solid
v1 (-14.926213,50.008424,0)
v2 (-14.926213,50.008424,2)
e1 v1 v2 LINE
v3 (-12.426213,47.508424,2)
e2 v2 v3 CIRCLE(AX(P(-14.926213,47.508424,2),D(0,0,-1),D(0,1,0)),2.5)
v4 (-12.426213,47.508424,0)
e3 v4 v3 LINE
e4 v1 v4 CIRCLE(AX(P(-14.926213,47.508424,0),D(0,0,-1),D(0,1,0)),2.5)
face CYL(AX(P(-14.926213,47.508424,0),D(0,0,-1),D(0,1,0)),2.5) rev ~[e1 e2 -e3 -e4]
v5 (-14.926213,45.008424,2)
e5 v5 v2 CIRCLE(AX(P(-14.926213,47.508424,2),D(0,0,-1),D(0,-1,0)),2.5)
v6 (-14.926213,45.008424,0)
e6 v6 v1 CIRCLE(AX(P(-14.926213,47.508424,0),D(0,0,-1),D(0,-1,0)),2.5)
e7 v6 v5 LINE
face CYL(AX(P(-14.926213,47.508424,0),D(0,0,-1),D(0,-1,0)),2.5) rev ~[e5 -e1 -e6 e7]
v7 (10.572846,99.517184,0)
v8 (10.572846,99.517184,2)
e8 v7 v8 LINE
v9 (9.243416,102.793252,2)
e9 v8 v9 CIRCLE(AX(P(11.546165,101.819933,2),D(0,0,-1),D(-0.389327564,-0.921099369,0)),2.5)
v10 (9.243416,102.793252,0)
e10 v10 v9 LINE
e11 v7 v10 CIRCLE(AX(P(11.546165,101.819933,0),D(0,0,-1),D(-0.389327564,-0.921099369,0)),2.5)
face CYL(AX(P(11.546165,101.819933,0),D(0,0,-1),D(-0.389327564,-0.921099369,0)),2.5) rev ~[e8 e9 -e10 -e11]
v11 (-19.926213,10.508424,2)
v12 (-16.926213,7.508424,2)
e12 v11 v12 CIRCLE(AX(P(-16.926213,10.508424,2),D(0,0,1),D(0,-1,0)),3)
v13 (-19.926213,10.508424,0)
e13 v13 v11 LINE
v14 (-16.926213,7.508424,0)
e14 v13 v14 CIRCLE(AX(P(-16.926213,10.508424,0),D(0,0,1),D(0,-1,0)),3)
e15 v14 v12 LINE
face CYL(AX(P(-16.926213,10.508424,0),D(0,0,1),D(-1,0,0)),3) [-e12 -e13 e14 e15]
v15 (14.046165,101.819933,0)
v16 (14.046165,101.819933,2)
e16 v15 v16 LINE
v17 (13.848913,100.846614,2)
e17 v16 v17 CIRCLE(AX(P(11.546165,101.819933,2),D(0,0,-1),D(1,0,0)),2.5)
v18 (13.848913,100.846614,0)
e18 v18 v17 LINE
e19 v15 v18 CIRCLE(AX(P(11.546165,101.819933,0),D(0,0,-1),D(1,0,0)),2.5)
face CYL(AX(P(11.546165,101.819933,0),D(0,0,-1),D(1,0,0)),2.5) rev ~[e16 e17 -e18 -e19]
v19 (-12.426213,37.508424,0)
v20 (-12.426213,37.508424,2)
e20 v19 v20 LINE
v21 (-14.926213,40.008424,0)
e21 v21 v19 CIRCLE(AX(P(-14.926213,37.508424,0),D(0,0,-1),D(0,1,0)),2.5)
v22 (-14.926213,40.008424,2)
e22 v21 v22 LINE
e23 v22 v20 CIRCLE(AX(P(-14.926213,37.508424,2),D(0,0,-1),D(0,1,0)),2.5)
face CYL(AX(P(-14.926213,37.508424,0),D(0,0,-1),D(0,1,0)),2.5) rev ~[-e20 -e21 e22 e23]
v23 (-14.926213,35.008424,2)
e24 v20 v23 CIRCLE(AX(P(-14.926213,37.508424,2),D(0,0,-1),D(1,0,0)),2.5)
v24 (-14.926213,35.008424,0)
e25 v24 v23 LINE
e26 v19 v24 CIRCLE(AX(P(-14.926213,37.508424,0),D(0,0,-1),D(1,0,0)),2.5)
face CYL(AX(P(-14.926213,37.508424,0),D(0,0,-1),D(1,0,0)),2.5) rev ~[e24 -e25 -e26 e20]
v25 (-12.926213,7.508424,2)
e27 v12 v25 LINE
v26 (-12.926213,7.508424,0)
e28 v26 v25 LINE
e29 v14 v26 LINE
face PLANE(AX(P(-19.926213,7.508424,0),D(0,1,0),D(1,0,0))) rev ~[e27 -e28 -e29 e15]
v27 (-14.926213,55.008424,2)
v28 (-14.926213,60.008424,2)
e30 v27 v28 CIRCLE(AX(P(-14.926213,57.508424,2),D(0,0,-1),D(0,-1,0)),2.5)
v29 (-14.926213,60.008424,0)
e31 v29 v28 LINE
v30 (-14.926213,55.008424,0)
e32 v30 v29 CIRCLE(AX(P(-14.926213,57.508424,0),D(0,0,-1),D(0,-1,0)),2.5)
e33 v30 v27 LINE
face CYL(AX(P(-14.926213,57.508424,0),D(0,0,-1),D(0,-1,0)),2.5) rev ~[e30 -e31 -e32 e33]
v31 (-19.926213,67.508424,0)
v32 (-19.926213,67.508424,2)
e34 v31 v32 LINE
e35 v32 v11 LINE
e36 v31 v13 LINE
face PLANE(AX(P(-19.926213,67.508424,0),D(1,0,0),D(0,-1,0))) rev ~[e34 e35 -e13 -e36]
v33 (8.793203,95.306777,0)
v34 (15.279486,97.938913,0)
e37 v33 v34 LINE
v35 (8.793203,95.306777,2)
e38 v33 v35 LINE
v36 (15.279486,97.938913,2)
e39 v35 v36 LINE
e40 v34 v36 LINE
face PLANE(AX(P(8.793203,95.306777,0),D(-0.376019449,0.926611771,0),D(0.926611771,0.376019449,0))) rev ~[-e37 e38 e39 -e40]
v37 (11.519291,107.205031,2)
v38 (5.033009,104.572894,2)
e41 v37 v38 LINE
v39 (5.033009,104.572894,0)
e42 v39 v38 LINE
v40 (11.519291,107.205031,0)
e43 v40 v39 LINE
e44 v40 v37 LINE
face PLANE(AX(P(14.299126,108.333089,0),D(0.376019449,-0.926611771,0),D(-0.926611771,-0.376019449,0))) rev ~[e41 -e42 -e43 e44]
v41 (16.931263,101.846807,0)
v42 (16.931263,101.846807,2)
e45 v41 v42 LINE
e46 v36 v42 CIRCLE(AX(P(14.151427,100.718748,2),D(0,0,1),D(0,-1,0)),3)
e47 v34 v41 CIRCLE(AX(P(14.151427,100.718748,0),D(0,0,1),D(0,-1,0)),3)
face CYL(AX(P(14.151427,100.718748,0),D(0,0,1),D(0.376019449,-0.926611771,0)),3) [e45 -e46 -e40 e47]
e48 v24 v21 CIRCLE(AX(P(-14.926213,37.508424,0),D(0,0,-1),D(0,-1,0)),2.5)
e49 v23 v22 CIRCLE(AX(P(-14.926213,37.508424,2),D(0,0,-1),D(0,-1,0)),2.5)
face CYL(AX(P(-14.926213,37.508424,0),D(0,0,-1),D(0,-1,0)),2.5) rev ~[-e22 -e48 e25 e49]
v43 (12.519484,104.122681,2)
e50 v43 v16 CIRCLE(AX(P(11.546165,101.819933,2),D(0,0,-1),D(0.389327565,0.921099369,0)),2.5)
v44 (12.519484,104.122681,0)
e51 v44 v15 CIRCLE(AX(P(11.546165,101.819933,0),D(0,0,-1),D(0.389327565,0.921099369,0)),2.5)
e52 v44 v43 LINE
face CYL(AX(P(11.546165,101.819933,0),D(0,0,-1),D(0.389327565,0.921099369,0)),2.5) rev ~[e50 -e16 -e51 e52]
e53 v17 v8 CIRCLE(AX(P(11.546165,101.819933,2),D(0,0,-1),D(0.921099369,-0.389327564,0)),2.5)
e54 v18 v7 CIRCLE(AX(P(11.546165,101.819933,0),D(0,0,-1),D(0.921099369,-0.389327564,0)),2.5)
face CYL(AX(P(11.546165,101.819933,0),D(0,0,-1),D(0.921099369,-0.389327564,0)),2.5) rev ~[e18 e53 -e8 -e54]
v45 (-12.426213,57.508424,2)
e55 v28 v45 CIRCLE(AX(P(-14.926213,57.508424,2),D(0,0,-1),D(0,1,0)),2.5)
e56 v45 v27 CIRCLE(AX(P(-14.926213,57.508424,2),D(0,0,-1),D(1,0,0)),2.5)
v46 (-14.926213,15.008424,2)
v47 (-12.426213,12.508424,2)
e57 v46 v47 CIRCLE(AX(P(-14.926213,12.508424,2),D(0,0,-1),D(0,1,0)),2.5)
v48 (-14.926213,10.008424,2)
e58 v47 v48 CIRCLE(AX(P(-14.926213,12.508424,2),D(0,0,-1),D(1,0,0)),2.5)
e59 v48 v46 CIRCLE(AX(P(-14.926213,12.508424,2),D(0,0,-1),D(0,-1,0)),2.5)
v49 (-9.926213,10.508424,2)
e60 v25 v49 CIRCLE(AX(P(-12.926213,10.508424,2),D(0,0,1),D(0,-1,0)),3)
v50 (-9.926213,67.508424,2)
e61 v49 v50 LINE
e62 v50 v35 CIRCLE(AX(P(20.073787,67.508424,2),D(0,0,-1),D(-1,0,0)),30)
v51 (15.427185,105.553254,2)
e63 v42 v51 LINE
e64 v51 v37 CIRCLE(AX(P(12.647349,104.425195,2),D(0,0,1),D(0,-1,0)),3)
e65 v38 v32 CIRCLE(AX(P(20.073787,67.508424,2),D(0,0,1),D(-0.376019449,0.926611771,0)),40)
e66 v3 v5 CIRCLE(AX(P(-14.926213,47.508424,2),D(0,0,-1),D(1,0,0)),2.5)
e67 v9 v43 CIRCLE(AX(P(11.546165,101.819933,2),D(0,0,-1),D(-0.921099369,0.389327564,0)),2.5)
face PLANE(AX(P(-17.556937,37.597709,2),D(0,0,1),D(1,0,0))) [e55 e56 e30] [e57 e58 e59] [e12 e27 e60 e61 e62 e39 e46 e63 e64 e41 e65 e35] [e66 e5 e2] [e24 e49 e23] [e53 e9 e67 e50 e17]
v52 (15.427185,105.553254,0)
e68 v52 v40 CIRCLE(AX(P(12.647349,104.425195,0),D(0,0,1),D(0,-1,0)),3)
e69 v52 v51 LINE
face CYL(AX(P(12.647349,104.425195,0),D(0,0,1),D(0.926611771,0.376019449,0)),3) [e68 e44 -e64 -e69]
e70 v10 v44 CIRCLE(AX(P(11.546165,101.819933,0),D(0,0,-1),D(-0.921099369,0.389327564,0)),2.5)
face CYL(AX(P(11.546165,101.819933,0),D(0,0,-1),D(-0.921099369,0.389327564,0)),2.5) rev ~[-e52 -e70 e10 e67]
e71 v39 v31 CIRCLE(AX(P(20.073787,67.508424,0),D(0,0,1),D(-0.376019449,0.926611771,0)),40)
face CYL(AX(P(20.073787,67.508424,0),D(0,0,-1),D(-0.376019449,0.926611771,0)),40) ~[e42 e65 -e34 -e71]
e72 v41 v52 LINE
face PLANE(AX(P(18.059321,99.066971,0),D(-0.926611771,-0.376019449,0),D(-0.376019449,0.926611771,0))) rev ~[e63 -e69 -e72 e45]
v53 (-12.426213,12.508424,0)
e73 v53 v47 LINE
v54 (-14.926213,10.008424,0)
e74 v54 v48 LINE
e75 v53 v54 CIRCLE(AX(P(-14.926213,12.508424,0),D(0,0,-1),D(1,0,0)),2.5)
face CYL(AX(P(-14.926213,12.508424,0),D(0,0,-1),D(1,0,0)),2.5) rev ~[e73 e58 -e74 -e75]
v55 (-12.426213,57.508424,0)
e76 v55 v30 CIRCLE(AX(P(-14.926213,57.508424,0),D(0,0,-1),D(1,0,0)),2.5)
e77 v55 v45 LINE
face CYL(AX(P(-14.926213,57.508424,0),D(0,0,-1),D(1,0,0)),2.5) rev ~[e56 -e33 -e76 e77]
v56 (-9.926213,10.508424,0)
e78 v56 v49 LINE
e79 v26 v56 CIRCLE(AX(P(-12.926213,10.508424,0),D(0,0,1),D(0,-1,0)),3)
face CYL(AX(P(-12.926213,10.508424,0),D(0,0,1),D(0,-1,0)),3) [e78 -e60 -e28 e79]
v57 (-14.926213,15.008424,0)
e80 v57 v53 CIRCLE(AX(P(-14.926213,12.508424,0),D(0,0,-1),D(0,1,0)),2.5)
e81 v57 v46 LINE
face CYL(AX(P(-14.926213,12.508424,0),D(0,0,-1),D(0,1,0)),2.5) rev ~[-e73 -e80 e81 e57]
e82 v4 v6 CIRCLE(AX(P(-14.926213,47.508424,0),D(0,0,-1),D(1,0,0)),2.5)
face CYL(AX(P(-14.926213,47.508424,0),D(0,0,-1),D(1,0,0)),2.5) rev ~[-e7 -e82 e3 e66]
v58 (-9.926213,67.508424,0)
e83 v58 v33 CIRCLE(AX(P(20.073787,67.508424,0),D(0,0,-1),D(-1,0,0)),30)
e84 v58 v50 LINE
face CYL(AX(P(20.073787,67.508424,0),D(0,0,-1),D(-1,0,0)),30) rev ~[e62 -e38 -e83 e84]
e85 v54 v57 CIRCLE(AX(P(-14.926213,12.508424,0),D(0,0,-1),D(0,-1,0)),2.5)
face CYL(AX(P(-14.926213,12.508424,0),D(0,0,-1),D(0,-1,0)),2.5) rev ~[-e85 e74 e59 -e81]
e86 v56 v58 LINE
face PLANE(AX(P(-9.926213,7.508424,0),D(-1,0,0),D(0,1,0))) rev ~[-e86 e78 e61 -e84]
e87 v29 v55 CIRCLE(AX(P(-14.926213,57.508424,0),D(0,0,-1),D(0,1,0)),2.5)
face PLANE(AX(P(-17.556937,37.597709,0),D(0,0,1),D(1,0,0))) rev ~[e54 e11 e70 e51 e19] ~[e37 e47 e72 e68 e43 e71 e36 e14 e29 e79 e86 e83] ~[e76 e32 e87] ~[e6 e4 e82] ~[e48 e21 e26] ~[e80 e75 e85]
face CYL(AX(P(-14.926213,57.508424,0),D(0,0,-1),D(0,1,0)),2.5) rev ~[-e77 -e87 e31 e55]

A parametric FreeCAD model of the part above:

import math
import FreeCAD as App
import Part
import Sketcher
Q = App.Units.Quantity


def edges_at(feature, points):
    """Names of the edges that pass closest to the given points."""
    edges = feature.Shape.Edges
    near = lambda p: min(range(len(edges)), key=lambda i: edges[i].distToShape(Part.Vertex(*p))[0])
    return sorted({f"Edge{near(p) + 1}" for p in points})

doc = App.newDocument("Part")
params = doc.addObject("Spreadsheet::Sheet", "Params")
for row, (alias, value) in enumerate([
    ("sketch1_radius", "30 mm"),
    ("sketch1_radius2", "40 mm"),
    ("sketch1_radius3", "2.5 mm"),
    ("sketch1_height", "60 mm"),
    ("pad1_length", "2 mm"),
    ("fillet_radius", "3 mm"),
], start=1):
    params.set(f"A{row}", alias)
    params.set(f"B{row}", "=" + value)
    params.setAlias(f"B{row}", alias)

body = doc.addObject("PartDesign::Body", "Body")

sketch1 = body.newObject("Sketcher::SketchObject", "Sketch")
sketch1.AttachmentSupport = (doc.getObject("XY_Plane"), [""])
sketch1.MapMode = "FlatFace"
sketch1.addGeometry([
    Part.LineSegment(App.Vector(-19.9, 67.5, 0), App.Vector(-19.9, 7.5, 0)),
    Part.LineSegment(App.Vector(-19.9, 7.5, 0), App.Vector(-9.9, 7.5, 0)),
    Part.LineSegment(App.Vector(-9.9, 7.5, 0), App.Vector(-9.9, 67.5, 0)),
    Part.ArcOfCircle(Part.Circle(App.Vector(20.1, 67.5, 0), App.Vector(0, 0, 1), 30), math.radians(112), math.radians(180)),
    Part.LineSegment(App.Vector(8.8, 95.3, 0), App.Vector(18.1, 99.1, 0)),
    Part.LineSegment(App.Vector(18.1, 99.1, 0), App.Vector(14.3, 108.3, 0)),
    Part.LineSegment(App.Vector(14.3, 108.3, 0), App.Vector(5, 104.6, 0)),
    Part.ArcOfCircle(Part.Circle(App.Vector(20.1, 67.5, 0), App.Vector(0, 0, 1), 40), math.radians(112), math.radians(180)),
    Part.ArcOfCircle(Part.Circle(App.Vector(11.5, 101.8, 0), App.Vector(0, 0, 1), 2.5), math.radians(0), math.radians(67)),
    Part.ArcOfCircle(Part.Circle(App.Vector(11.5, 101.8, 0), App.Vector(0, 0, 1), 2.5), math.radians(-23), math.radians(0)),
    Part.ArcOfCircle(Part.Circle(App.Vector(11.5, 101.8, 0), App.Vector(0, 0, 1), 2.5), math.radians(-113), math.radians(-23)),
    Part.ArcOfCircle(Part.Circle(App.Vector(11.5, 101.8, 0), App.Vector(0, 0, 1), 2.5), math.radians(157), math.radians(247)),
    Part.ArcOfCircle(Part.Circle(App.Vector(11.5, 101.8, 0), App.Vector(0, 0, 1), 2.5), math.radians(67), math.radians(157)),
    Part.ArcOfCircle(Part.Circle(App.Vector(-14.9, 12.5, 0), App.Vector(0, 0, 1), 2.5), math.radians(90), math.radians(270)),
    Part.ArcOfCircle(Part.Circle(App.Vector(-14.9, 12.5, 0), App.Vector(0, 0, 1), 2.5), math.radians(0), math.radians(90)),
    Part.ArcOfCircle(Part.Circle(App.Vector(-14.9, 12.5, 0), App.Vector(0, 0, 1), 2.5), math.radians(-90), math.radians(0)),
    Part.ArcOfCircle(Part.Circle(App.Vector(-14.9, 37.5, 0), App.Vector(0, 0, 1), 2.5), math.radians(90), math.radians(270)),
    Part.ArcOfCircle(Part.Circle(App.Vector(-14.9, 37.5, 0), App.Vector(0, 0, 1), 2.5), math.radians(0), math.radians(90)),
    Part.ArcOfCircle(Part.Circle(App.Vector(-14.9, 37.5, 0), App.Vector(0, 0, 1), 2.5), math.radians(-90), math.radians(0)),
    Part.ArcOfCircle(Part.Circle(App.Vector(-14.9, 47.5, 0), App.Vector(0, 0, 1), 2.5), math.radians(90), math.radians(270)),
    Part.ArcOfCircle(Part.Circle(App.Vector(-14.9, 47.5, 0), App.Vector(0, 0, 1), 2.5), math.radians(0), math.radians(90)),
    Part.ArcOfCircle(Part.Circle(App.Vector(-14.9, 47.5, 0), App.Vector(0, 0, 1), 2.5), math.radians(-90), math.radians(0)),
    Part.ArcOfCircle(Part.Circle(App.Vector(-14.9, 57.5, 0), App.Vector(0, 0, 1), 2.5), math.radians(90), math.radians(270)),
    Part.ArcOfCircle(Part.Circle(App.Vector(-14.9, 57.5, 0), App.Vector(0, 0, 1), 2.5), math.radians(0), math.radians(90)),
    Part.ArcOfCircle(Part.Circle(App.Vector(-14.9, 57.5, 0), App.Vector(0, 0, 1), 2.5), math.radians(-90), math.radians(0)),
], False)
sketch1.addConstraint([
    Sketcher.Constraint("Coincident", 0, 2, 1, 1),
    Sketcher.Constraint("Coincident", 1, 2, 2, 1),
    Sketcher.Constraint("Tangent", 2, 2, 3, 2),
    Sketcher.Constraint("Tangent", 3, 1, 4, 1),
    Sketcher.Constraint("Coincident", 4, 2, 5, 1),
    Sketcher.Constraint("Coincident", 5, 2, 6, 1),
    Sketcher.Constraint("Tangent", 6, 2, 7, 1),
    Sketcher.Constraint("Tangent", 7, 2, 0, 1),
    Sketcher.Constraint("Tangent", 8, 1, 9, 2),
    Sketcher.Constraint("Tangent", 9, 1, 10, 2),
    Sketcher.Constraint("Tangent", 10, 1, 11, 2),
    Sketcher.Constraint("Tangent", 11, 1, 12, 2),
    Sketcher.Constraint("Tangent", 12, 1, 8, 2),
    Sketcher.Constraint("Tangent", 13, 1, 14, 2),
    Sketcher.Constraint("Tangent", 14, 1, 15, 2),
    Sketcher.Constraint("Tangent", 15, 1, 13, 2),
    Sketcher.Constraint("Tangent", 16, 1, 17, 2),
    Sketcher.Constraint("Tangent", 17, 1, 18, 2),
    Sketcher.Constraint("Tangent", 18, 1, 16, 2),
    Sketcher.Constraint("Tangent", 19, 1, 20, 2),
    Sketcher.Constraint("Tangent", 20, 1, 21, 2),
    Sketcher.Constraint("Tangent", 21, 1, 19, 2),
    Sketcher.Constraint("Tangent", 22, 1, 23, 2),
    Sketcher.Constraint("Tangent", 23, 1, 24, 2),
    Sketcher.Constraint("Tangent", 24, 1, 22, 2),
    Sketcher.Constraint("Vertical", 0),
    Sketcher.Constraint("Horizontal", 1),
    Sketcher.Constraint("Vertical", 2),
    Sketcher.Constraint("Coincident", 7, 3, 3, 3),
    Sketcher.Constraint("Coincident", 10, 3, 8, 3),
    Sketcher.Constraint("Equal", 12, 13),
    Sketcher.Constraint("Equal", 15, 16),
    Sketcher.Constraint("Equal", 18, 19),
    Sketcher.Constraint("Equal", 21, 22),
    Sketcher.Constraint("Perpendicular", 4, 5),
    Sketcher.Constraint("Perpendicular", 5, 6),
    Sketcher.Constraint("Horizontal", 12, 3, 8, 1),
    Sketcher.Constraint("Horizontal", 15, 3, 14, 1),
    Sketcher.Constraint("Horizontal", 18, 3, 17, 1),
    Sketcher.Constraint("Horizontal", 21, 3, 20, 1),
    Sketcher.Constraint("Horizontal", 24, 3, 23, 1),
    Sketcher.Constraint("Vertical", 15, 3, 16, 3),
    Sketcher.Constraint("Vertical", 18, 3, 19, 3),
    Sketcher.Constraint("Vertical", 21, 3, 22, 3),
    Sketcher.Constraint("Vertical", 24, 3, 13, 1),
    Sketcher.Constraint("Vertical", 13, 1, 15, 1),
    Sketcher.Constraint("Vertical", 15, 1, 16, 1),
    Sketcher.Constraint("Vertical", 16, 1, 18, 1),
    Sketcher.Constraint("Vertical", 18, 1, 19, 1),
    Sketcher.Constraint("Vertical", 19, 1, 21, 1),
    Sketcher.Constraint("Vertical", 21, 1, 22, 1),
    Sketcher.Constraint("Vertical", 22, 1, 24, 1),
    Sketcher.Constraint("Equal", 4, 5),
    Sketcher.Constraint("Radius", 3, Q("30 mm")),
    Sketcher.Constraint("Radius", 7, Q("40 mm")),
    Sketcher.Constraint("Radius", 8, Q("2.5 mm")),
    Sketcher.Constraint("DistanceY", 0, 2, 0, 1, Q("60 mm")),
    Sketcher.Constraint("DistanceX", 13, 3, 3, 3, Q("35 mm")),
    Sketcher.Constraint("DistanceY", 13, 3, 3, 3, Q("55 mm")),
    Sketcher.Constraint("DistanceY", 15, 3, 16, 3, Q("25 mm")),
    Sketcher.Constraint("DistanceY", 18, 3, 19, 3, Q("10 mm")),
    Sketcher.Constraint("DistanceY", 21, 3, 22, 3, Q("10 mm")),
    Sketcher.Constraint("DistanceX", -1, 1, 4, 2, Q("18.059321 mm")),
    Sketcher.Constraint("DistanceY", -1, 1, 4, 2, Q("99.066971 mm")),
    Sketcher.Constraint("DistanceY", -1, 1, 5, 2, Q("108.333089 mm")),
    Sketcher.Constraint("DistanceY", -1, 1, 11, 1, Q("102.793252 mm")),
    Sketcher.Constraint("DistanceY", -1, 1, 12, 1, Q("104.122681 mm")),
    Sketcher.Constraint("DistanceX", 8, 3, 3, 3, Q("8.527622 mm")),
    Sketcher.Constraint("DistanceY", 3, 3, 8, 3, Q("34.311509 mm")),
    Sketcher.Constraint("DistanceX", 9, 1, 8, 1, Q("0.197252 mm")),
    Sketcher.Constraint("DistanceX", 10, 1, 9, 3, Q("0.973319 mm")),
])
sketch1.setExpression("Constraints[53]", "Params.sketch1_radius")
sketch1.setExpression("Constraints[54]", "Params.sketch1_radius2")
sketch1.setExpression("Constraints[55]", "Params.sketch1_radius3")
sketch1.setExpression("Constraints[56]", "Params.sketch1_height")
pad1 = body.newObject("PartDesign::Pad", "Pad")
pad1.Profile = sketch1
pad1.setExpression("Length", "Params.pad1_length")
doc.recompute()

fillet = body.newObject("PartDesign::Fillet", "Fillet")
fillet.Base = (pad1, edges_at(pad1, [
    (14.299, 108.333, 1),
    (18.059, 99.067, 1),
    (-9.926, 7.508, 1),
    (-19.926, 7.508, 1),
]))
fillet.setExpression("Radius", "Params.fillet_radius")

doc.recompute()
